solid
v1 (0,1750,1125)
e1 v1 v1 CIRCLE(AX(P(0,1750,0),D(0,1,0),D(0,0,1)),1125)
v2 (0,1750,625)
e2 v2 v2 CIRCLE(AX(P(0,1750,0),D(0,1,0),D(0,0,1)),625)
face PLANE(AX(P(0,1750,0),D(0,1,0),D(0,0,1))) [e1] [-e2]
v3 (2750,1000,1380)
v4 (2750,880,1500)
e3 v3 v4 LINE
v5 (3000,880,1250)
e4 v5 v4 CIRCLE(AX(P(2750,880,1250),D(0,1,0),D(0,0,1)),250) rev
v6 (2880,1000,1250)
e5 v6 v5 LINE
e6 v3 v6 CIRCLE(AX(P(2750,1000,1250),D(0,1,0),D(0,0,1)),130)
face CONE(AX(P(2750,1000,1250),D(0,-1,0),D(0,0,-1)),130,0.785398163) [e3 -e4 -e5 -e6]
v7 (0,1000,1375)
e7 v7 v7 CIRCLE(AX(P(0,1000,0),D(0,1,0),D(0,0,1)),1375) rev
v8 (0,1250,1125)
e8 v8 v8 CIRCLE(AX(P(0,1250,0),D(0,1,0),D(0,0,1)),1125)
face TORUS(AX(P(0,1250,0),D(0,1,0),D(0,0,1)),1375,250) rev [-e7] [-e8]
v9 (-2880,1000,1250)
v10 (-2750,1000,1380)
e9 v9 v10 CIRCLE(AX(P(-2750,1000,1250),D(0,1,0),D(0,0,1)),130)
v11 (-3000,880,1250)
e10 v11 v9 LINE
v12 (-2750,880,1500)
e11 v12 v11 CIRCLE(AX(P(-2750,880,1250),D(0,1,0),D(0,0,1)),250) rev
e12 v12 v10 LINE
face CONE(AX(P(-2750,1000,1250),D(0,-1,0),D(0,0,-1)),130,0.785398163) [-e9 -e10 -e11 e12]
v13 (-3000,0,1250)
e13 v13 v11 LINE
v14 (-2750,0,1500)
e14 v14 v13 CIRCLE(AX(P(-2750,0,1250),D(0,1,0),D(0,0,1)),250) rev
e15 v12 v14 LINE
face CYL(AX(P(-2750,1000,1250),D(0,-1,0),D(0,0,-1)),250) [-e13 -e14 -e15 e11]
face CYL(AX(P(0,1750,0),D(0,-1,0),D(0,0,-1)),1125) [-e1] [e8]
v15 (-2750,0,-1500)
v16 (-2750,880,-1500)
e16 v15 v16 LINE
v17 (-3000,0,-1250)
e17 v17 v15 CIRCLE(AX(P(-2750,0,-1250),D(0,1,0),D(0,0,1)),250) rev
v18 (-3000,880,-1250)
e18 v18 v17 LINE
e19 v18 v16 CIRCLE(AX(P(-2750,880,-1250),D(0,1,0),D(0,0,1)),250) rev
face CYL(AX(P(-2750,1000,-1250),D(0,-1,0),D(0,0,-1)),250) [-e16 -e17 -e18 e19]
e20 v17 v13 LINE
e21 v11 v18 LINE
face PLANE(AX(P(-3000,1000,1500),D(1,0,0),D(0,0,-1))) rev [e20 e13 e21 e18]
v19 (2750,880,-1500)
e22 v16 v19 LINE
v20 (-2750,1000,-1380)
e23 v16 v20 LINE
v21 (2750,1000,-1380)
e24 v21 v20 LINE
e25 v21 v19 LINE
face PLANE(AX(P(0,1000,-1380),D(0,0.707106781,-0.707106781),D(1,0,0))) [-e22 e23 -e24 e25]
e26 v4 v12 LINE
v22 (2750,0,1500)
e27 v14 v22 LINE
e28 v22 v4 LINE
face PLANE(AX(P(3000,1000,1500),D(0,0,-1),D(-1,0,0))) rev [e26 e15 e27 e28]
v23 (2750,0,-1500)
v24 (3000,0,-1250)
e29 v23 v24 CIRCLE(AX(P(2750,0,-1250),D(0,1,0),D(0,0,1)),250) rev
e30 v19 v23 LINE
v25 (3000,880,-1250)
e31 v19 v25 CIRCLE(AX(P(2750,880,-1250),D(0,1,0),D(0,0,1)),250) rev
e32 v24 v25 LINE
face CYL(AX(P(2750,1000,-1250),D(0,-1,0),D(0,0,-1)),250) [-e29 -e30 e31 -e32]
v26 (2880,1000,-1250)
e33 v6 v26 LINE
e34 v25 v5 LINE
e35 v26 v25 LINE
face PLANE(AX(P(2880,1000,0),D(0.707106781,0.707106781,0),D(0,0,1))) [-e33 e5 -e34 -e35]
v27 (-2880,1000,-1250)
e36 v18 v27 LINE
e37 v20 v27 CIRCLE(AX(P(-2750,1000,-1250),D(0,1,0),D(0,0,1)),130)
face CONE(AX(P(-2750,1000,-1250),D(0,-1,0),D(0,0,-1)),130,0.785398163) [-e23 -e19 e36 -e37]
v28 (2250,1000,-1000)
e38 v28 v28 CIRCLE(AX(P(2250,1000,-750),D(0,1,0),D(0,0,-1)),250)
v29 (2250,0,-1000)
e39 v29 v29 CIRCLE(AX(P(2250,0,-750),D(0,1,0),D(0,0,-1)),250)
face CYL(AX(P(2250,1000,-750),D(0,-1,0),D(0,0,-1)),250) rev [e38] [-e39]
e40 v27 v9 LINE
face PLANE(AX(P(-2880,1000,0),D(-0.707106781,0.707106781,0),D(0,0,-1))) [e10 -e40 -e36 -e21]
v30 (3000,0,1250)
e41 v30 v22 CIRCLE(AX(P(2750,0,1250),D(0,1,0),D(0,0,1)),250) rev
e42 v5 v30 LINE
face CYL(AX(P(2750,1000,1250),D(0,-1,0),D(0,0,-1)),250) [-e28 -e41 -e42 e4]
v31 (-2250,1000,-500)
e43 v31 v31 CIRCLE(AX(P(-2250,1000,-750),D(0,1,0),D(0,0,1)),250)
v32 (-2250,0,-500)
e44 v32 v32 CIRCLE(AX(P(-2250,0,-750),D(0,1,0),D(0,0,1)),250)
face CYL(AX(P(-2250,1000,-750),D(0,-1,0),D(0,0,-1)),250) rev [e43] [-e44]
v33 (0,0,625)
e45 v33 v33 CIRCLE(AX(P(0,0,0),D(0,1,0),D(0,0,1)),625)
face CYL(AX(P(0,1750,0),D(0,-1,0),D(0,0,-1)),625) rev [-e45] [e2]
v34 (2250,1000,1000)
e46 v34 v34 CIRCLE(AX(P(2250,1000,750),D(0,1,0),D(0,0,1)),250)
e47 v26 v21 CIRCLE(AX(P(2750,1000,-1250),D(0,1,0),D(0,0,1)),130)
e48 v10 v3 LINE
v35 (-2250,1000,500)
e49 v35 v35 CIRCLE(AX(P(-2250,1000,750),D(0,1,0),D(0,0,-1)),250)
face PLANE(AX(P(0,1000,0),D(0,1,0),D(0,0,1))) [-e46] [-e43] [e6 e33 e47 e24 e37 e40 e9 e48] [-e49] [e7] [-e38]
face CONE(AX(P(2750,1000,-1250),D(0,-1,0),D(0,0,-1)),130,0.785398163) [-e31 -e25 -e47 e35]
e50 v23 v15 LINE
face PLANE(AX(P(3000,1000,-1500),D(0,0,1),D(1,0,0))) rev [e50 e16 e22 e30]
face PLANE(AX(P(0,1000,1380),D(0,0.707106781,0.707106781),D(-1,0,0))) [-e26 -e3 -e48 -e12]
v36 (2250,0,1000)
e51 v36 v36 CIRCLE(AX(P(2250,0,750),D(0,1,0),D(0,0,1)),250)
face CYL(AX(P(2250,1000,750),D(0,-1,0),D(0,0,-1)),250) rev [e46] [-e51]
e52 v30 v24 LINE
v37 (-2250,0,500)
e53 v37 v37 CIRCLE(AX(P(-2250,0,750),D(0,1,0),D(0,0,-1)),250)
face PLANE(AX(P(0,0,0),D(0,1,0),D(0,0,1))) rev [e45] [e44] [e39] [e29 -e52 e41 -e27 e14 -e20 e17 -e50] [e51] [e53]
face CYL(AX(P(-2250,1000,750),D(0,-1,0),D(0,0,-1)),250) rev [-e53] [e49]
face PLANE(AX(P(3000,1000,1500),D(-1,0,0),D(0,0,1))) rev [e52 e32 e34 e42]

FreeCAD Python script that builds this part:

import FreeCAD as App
import Part
import Sketcher

V = App.Vector
Q = App.Units.Quantity


def edges_at(feature, points):
    """Names of the edges that pass closest to the given points."""
    edges = feature.Shape.Edges
    near = lambda p: min(range(len(edges)), key=lambda i: edges[i].distToShape(Part.Vertex(*p))[0])
    return sorted({f"Edge{near(p) + 1}" for p in points})

doc = App.newDocument("Part")
body = doc.addObject("PartDesign::Body", "Body")

# Sketch on XZ plane
sketch1 = doc.addObject("Sketcher::SketchObject", "Sketch")
body.addObject(sketch1)
sketch1.AttachmentSupport = (doc.XZ_Plane, [""])
sketch1.MapMode = "FlatFace"
sketch1.addGeometry([
    Part.LineSegment(V(-3000, -1500, 0), V(-3000, 1500, 0)),  # 0
    Part.LineSegment(V(-3000, 1500, 0), V(3000, 1500, 0)),  # 1
    Part.LineSegment(V(3000, 1500, 0), V(3000, -1500, 0)),  # 2
    Part.LineSegment(V(3000, -1500, 0), V(-3000, -1500, 0)),  # 3
    Part.Circle(V(-2250, 750, 0), V(0, 0, 1), 250),  # 4
    Part.Circle(V(2250, 750, 0), V(0, 0, 1), 250),  # 5
    Part.Circle(V(-2250, -750, 0), V(0, 0, 1), 250),  # 6
    Part.Circle(V(2250, -750, 0), V(0, 0, 1), 250),  # 7
], False)
sketch1.addConstraint([
    Sketcher.Constraint("Coincident", 0, 2, 1, 1),
    Sketcher.Constraint("Coincident", 1, 2, 2, 1),
    Sketcher.Constraint("Coincident", 2, 2, 3, 1),
    Sketcher.Constraint("Coincident", 3, 2, 0, 1),
    Sketcher.Constraint("Vertical", 0),
    Sketcher.Constraint("Horizontal", 1),
    Sketcher.Constraint("Vertical", 2),
    Sketcher.Constraint("Horizontal", 3),
    Sketcher.Constraint("Equal", 4, 5),
    Sketcher.Constraint("Equal", 5, 6),
    Sketcher.Constraint("Equal", 6, 7),
    Sketcher.Constraint("Symmetric", 5, 3, 6, 3, -1, 1),
    Sketcher.Constraint("Symmetric", 4, 3, 7, 3, -1, 1),
    Sketcher.Constraint("Symmetric", 0, 2, 2, 2, -1, 1),
    Sketcher.Constraint("Symmetric", 4, 3, 5, 3, -2),
    Sketcher.Constraint("Diameter", 4, Q("500 mm")),
    Sketcher.Constraint("DistanceX", 1, 1, 1, 2, Q("6000 mm")),
    Sketcher.Constraint("DistanceY", 0, 1, 0, 2, Q("3000 mm")),
    Sketcher.Constraint("DistanceX", 4, 3, -1, 1, Q("2250 mm")),
    Sketcher.Constraint("DistanceY", -1, 1, 4, 3, Q("750 mm")),
])
pad1 = doc.addObject("PartDesign::Pad", "Pad")
body.addObject(pad1)
pad1.Profile = sketch1
pad1.Length = 1000
pad1.Reversed = True

# Sketch on XZ plane
sketch2 = doc.addObject("Sketcher::SketchObject", "Sketch001")
body.addObject(sketch2)
sketch2.AttachmentSupport = (doc.XZ_Plane, [""])
sketch2.MapMode = "FlatFace"
sketch2.AttachmentOffset = App.Placement(V(0, 0, -1000), App.Rotation())
sketch2.addGeometry([
    Part.Circle(V(0, 0, 0), V(0, 0, 1), 1125),
    Part.Circle(V(0, 0, 0), V(0, 0, 1), 625),
], False)
sketch2.addConstraint([
    Sketcher.Constraint("Coincident", 0, 3, -1, 1),
    Sketcher.Constraint("Coincident", 1, 3, -1, 1),
    Sketcher.Constraint("Diameter", 0, Q("2250 mm")),
    Sketcher.Constraint("Diameter", 1, Q("1250 mm")),
])
pad2 = doc.addObject("PartDesign::Pad", "Pad001")
body.addObject(pad2)
pad2.Profile = sketch2
pad2.Length = 750
pad2.Reversed = True

# Sketch on XZ plane
sketch3 = doc.addObject("Sketcher::SketchObject", "Sketch002")
body.addObject(sketch3)
sketch3.AttachmentSupport = (doc.XZ_Plane, [""])
sketch3.MapMode = "FlatFace"
sketch3.AttachmentOffset = App.Placement(V(0, 0, -1000), App.Rotation())
sketch3.addGeometry(Part.Circle(V(0, 0, 0), V(0, 0, 1), 625), False)
sketch3.addConstraint([
    Sketcher.Constraint("Coincident", 0, 3, -1, 1),
    Sketcher.Constraint("Diameter", 0, Q("1250 mm")),
])
pocket1 = doc.addObject("PartDesign::Pocket", "Pocket")
body.addObject(pocket1)
pocket1.Profile = sketch3
pocket1.Type = "ThroughAll"
pocket1.Reversed = True
doc.recompute()

fillet = doc.addObject("PartDesign::Fillet", "Fillet")
body.addObject(fillet)
fillet.Base = (pocket1, edges_at(pocket1, [(0, 1000, -1125)]))
fillet.Radius = 250
doc.recompute()

fillet2 = doc.addObject("PartDesign::Fillet", "Fillet001")
body.addObject(fillet2)
fillet2.Base = (fillet, edges_at(fillet, [
    (-3000, 500, -1500),
    (3000, 500, -1500),
    (3000, 500, 1500),
    (-3000, 500, 1500),
]))
fillet2.Radius = 250
doc.recompute()

chamfer = doc.addObject("PartDesign::Chamfer", "Chamfer")
body.addObject(chamfer)
chamfer.Base = (fillet2, edges_at(fillet2, [
    (-3000, 1000, 0),
    (0, 1000, -1500),
    (0, 1000, 1500),
    (3000, 1000, 0),
    (-2926.777, 1000, 1426.777),
    (2926.777, 1000, 1426.777),
    (2926.777, 1000, -1426.777),
    (-2926.777, 1000, -1426.777),
]))
chamfer.Size = 120

doc.recompute()
